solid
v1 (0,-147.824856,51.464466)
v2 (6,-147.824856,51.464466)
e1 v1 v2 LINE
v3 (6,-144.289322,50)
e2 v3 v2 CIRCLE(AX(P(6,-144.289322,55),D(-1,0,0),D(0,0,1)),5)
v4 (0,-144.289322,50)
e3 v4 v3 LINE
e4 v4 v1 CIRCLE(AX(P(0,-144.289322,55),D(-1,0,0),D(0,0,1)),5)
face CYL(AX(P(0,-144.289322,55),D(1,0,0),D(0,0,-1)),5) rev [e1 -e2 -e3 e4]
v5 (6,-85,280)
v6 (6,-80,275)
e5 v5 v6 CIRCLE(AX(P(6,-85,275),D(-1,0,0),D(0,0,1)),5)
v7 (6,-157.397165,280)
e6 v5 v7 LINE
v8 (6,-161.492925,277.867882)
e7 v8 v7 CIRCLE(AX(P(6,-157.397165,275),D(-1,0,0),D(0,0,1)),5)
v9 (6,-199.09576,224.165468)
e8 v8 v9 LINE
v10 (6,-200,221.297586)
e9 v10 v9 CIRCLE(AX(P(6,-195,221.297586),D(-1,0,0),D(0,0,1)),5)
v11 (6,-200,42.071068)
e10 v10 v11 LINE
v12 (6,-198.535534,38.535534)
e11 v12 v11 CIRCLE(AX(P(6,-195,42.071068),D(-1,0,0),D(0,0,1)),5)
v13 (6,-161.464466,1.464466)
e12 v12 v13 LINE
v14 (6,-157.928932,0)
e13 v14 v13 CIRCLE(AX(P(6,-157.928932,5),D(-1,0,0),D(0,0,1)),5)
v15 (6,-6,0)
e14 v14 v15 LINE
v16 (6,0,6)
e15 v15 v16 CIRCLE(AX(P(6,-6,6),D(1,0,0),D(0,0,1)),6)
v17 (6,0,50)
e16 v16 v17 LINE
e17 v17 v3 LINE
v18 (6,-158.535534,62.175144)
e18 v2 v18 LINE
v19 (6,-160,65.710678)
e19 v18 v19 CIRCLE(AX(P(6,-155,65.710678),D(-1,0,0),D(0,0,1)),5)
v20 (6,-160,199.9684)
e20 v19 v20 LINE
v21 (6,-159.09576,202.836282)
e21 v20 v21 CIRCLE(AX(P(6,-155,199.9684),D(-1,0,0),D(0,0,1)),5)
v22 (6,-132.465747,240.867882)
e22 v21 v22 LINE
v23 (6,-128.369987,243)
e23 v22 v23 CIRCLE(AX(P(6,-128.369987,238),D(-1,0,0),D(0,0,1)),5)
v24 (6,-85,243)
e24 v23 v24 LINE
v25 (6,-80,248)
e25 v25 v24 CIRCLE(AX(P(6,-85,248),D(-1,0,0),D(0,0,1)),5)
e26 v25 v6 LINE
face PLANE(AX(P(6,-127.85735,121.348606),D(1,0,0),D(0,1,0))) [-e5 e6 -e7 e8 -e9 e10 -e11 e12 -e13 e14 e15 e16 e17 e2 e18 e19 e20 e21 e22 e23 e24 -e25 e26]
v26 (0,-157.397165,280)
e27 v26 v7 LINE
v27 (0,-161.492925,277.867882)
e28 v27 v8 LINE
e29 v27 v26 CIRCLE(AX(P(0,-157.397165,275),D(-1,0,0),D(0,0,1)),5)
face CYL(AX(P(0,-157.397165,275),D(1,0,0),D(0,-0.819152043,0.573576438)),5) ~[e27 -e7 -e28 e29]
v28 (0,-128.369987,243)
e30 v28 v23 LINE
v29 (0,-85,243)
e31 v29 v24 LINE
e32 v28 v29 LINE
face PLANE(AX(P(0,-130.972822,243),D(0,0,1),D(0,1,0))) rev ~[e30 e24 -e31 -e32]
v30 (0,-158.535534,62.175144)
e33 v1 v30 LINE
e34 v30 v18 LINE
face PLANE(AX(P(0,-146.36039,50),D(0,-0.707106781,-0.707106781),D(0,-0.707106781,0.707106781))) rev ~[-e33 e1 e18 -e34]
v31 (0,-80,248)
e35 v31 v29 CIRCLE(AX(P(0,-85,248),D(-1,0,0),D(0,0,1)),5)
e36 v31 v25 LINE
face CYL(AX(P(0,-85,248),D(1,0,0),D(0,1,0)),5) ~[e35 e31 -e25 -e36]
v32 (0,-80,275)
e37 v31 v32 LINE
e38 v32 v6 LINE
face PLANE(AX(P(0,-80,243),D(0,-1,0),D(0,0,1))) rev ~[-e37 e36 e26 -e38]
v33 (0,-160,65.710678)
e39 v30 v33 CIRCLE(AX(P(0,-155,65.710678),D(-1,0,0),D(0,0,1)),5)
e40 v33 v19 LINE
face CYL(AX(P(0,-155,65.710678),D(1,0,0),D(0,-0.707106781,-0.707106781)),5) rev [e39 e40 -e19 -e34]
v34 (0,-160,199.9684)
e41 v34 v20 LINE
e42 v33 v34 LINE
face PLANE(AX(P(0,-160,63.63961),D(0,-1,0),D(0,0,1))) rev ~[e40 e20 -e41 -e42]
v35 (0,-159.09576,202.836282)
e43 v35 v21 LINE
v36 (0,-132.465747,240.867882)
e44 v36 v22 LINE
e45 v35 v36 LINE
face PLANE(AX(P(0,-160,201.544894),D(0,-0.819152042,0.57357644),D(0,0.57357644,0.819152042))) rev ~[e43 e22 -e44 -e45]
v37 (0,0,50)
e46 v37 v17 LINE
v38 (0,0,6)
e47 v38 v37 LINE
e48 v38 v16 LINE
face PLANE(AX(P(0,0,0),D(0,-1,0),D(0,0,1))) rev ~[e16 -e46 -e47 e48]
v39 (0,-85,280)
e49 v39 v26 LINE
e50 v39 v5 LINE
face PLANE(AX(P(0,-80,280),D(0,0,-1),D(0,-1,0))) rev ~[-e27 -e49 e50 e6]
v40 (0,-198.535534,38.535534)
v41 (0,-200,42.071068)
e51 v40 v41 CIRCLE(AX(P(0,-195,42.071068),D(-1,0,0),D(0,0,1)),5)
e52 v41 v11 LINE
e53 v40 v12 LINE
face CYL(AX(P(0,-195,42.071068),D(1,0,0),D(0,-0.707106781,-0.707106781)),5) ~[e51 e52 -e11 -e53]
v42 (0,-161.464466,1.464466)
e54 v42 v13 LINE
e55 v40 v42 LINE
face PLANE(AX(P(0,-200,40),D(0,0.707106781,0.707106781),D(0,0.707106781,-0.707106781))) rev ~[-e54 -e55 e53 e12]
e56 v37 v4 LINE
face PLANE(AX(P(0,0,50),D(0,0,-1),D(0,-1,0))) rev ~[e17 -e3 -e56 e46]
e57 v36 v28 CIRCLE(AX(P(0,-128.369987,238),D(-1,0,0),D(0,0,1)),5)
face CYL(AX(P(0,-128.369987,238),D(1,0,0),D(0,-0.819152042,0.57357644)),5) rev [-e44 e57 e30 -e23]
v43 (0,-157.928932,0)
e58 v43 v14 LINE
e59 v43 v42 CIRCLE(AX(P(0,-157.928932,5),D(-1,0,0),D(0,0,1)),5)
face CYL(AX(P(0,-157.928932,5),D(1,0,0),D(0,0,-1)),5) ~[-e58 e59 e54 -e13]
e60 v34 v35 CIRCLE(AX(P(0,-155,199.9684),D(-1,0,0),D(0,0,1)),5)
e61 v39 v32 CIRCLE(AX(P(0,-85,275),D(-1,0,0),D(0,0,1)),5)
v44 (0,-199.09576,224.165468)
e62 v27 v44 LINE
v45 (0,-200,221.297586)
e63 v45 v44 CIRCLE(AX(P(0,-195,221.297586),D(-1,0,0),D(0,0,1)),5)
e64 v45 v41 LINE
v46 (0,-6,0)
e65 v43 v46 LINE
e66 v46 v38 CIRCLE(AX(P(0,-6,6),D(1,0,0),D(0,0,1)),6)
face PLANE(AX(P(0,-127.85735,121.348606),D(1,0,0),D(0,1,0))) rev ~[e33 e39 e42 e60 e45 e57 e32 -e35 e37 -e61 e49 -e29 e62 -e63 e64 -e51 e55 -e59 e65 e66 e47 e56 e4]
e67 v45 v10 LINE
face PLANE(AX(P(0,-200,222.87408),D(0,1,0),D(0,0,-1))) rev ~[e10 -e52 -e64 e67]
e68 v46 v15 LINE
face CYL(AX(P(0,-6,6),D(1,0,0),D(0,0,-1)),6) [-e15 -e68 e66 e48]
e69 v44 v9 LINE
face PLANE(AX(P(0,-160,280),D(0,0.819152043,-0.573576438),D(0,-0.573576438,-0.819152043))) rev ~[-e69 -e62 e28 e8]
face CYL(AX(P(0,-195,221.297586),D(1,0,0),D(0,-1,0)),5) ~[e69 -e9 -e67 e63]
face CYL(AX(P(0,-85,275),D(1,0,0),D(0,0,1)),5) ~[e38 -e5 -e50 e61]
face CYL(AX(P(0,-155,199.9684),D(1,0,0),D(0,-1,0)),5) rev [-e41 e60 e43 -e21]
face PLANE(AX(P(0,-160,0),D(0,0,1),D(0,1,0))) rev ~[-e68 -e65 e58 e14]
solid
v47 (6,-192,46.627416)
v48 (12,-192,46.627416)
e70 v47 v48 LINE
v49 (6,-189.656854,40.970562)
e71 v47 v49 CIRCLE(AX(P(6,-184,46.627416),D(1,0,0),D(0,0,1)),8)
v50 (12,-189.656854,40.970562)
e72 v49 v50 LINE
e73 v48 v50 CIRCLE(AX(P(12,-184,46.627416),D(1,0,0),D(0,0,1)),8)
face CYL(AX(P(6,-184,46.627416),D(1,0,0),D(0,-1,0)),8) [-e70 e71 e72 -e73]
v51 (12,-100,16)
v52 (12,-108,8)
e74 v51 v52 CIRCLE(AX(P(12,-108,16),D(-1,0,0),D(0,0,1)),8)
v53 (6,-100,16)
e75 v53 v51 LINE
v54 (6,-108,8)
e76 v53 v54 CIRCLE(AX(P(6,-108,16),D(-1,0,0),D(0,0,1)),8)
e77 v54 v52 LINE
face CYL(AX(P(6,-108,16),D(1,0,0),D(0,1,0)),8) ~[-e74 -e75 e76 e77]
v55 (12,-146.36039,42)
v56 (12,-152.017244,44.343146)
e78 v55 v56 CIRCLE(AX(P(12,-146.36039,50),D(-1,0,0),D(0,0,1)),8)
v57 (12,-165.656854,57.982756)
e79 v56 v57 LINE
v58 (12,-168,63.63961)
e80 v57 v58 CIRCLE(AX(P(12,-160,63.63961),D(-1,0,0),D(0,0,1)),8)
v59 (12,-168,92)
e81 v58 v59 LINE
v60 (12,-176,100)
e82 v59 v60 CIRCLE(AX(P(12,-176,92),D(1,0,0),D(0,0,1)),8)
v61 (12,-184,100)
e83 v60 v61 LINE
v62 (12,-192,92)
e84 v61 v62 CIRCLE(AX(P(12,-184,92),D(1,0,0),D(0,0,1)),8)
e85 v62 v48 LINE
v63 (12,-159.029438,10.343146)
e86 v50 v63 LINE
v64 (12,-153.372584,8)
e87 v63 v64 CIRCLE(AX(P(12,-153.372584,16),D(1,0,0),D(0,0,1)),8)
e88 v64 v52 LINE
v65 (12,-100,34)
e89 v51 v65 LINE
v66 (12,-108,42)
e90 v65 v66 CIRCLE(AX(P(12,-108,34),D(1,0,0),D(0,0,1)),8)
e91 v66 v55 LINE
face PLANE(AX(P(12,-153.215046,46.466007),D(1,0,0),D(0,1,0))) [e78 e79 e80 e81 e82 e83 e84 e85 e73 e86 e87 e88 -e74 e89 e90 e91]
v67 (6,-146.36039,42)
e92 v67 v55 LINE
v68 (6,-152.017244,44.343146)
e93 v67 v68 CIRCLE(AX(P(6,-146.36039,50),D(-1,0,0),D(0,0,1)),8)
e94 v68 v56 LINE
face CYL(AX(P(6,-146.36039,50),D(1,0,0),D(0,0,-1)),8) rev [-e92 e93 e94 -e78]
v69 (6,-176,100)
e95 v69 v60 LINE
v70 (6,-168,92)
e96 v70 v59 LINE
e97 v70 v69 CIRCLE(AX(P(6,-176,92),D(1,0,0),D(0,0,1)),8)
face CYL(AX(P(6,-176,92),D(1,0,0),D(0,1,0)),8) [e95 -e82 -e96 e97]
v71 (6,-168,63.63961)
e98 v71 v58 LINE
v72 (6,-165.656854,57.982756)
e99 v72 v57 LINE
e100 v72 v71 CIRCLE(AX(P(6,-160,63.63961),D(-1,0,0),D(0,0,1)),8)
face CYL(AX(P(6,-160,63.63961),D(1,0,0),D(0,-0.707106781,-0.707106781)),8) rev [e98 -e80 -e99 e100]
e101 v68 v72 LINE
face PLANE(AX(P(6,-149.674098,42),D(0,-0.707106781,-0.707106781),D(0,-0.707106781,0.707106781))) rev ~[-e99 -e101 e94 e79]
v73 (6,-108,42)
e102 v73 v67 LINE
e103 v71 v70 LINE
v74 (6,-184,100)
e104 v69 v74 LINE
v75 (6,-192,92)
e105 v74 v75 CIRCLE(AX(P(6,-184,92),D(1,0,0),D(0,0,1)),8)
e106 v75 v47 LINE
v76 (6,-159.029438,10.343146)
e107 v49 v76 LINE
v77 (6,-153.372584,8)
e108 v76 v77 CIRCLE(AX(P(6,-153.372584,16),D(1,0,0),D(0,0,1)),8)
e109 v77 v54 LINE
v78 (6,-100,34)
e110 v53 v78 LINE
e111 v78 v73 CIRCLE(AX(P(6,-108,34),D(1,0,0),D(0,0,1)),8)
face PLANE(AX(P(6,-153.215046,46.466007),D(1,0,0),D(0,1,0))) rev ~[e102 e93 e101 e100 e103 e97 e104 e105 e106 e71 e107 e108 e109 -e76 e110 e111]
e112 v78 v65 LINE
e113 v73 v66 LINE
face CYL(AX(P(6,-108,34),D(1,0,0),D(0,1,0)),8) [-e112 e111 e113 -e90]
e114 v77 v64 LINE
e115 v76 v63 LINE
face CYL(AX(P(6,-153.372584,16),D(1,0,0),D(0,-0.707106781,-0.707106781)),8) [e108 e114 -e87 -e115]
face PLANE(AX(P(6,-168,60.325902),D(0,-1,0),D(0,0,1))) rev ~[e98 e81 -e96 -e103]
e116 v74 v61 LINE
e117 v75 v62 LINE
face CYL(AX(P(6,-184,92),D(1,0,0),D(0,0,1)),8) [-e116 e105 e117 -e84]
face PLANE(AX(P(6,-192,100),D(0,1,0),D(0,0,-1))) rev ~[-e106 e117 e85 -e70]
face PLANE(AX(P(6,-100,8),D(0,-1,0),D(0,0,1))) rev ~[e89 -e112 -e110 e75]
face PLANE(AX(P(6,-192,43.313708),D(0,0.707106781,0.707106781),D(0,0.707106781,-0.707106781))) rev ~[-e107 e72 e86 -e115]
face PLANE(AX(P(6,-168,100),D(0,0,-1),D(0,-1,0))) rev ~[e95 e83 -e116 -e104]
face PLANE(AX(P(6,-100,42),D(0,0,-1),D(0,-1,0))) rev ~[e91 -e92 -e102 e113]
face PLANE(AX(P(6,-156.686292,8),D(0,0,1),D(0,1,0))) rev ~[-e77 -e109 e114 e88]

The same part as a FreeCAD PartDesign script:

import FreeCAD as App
import Part
import Sketcher
Q = App.Units.Quantity


def edges_at(feature, points):
    """Names of the edges that pass closest to the given points."""
    edges = feature.Shape.Edges
    near = lambda p: min(range(len(edges)), key=lambda i: edges[i].distToShape(Part.Vertex(*p))[0])
    return sorted({f"Edge{near(p) + 1}" for p in points})

doc = App.newDocument("Part")
body = doc.addObject("PartDesign::Body", "Body")

# Sketch on YZ plane
sketch1 = doc.addObject("Sketcher::SketchObject", "Sketch")
body.addObject(sketch1)
sketch1.AttachmentSupport = (doc.YZ_Plane, [""])
sketch1.MapMode = "FlatFace"
sketch1.addGeometry(Part.LineSegment(App.Vector(-160, 0, 0), App.Vector(0, 0, 0)), False)
sketch1.addGeometry(Part.LineSegment(App.Vector(0, 0, 0), App.Vector(0, 50, 0)), False)
sketch1.addGeometry(Part.LineSegment(App.Vector(0, 50, 0), App.Vector(-146.36039, 50, 0)), False)
sketch1.addGeometry(Part.LineSegment(App.Vector(-146.36039, 50, 0), App.Vector(-160, 63.63961, 0)), False)
sketch1.addGeometry(Part.LineSegment(App.Vector(-160, 63.63961, 0), App.Vector(-160, 201.544894, 0)), False)
sketch1.addGeometry(Part.LineSegment(App.Vector(-160, 201.544894, 0), App.Vector(-130.972822, 243, 0)), False)
sketch1.addGeometry(Part.LineSegment(App.Vector(-130.972822, 243, 0), App.Vector(-80, 243, 0)), False)
sketch1.addGeometry(Part.LineSegment(App.Vector(-80, 243, 0), App.Vector(-80, 280, 0)), False)
sketch1.addGeometry(Part.LineSegment(App.Vector(-80, 280, 0), App.Vector(-160, 280, 0)), False)
sketch1.addGeometry(Part.LineSegment(App.Vector(-160, 280, 0), App.Vector(-200, 222.87408, 0)), False)
sketch1.addGeometry(Part.LineSegment(App.Vector(-200, 222.87408, 0), App.Vector(-200, 40, 0)), False)
sketch1.addGeometry(Part.LineSegment(App.Vector(-200, 40, 0), App.Vector(-160, 0, 0)), False)
sketch1.addConstraint(Sketcher.Constraint("Coincident", 0, 2, 1, 1))
sketch1.addConstraint(Sketcher.Constraint("Coincident", 1, 2, 2, 1))
sketch1.addConstraint(Sketcher.Constraint("Coincident", 2, 2, 3, 1))
sketch1.addConstraint(Sketcher.Constraint("Coincident", 3, 2, 4, 1))
sketch1.addConstraint(Sketcher.Constraint("Coincident", 4, 2, 5, 1))
sketch1.addConstraint(Sketcher.Constraint("Coincident", 5, 2, 6, 1))
sketch1.addConstraint(Sketcher.Constraint("Coincident", 6, 2, 7, 1))
sketch1.addConstraint(Sketcher.Constraint("Coincident", 7, 2, 8, 1))
sketch1.addConstraint(Sketcher.Constraint("Coincident", 8, 2, 9, 1))
sketch1.addConstraint(Sketcher.Constraint("Coincident", 9, 2, 10, 1))
sketch1.addConstraint(Sketcher.Constraint("Coincident", 10, 2, 11, 1))
sketch1.addConstraint(Sketcher.Constraint("Coincident", 11, 2, 0, 1))
sketch1.addConstraint(Sketcher.Constraint("Horizontal", 0))
sketch1.addConstraint(Sketcher.Constraint("Vertical", 1))
sketch1.addConstraint(Sketcher.Constraint("Horizontal", 2))
sketch1.addConstraint(Sketcher.Constraint("Vertical", 4))
sketch1.addConstraint(Sketcher.Constraint("Horizontal", 6))
sketch1.addConstraint(Sketcher.Constraint("Vertical", 7))
sketch1.addConstraint(Sketcher.Constraint("Horizontal", 8))
sketch1.addConstraint(Sketcher.Constraint("Vertical", 10))
sketch1.addConstraint(Sketcher.Constraint("Coincident", 0, 2, -1, 1))
sketch1.addConstraint(Sketcher.Constraint("Parallel", 5, 9))
sketch1.addConstraint(Sketcher.Constraint("Parallel", 3, 11))
sketch1.addConstraint(Sketcher.Constraint("Vertical", 4, 2, 8, 2))
sketch1.addConstraint(Sketcher.Constraint("Vertical", 8, 2, 11, 2))
sketch1.addConstraint(Sketcher.Constraint("DistanceX", 0, 1, 0, 2, 160.0))
sketch1.addConstraint(Sketcher.Constraint("DistanceX", 8, 2, 8, 1, 80.0))
sketch1.addConstraint(Sketcher.Constraint("DistanceY", 1, 1, 1, 2, 50.0))
sketch1.addConstraint(Sketcher.Constraint("DistanceY", 7, 1, 7, 2, 37.0))
sketch1.addConstraint(Sketcher.Constraint("Angle", 3, Q("135 deg")))
sketch1.addConstraint(Sketcher.Constraint("Angle", 5, Q("55 deg")))
sketch1.addConstraint(Sketcher.Constraint("DistanceY", -1, 1, 5, 2, 243.0))
sketch1.addConstraint(Sketcher.Constraint("DistanceX", 9, 2, -1, 1, 200.0))
sketch1.addConstraint(Sketcher.Constraint("DistanceX", 2, 2, 2, 1, 146.36039))
sketch1.addConstraint(Sketcher.Constraint("Distance", 5, 50.60734))
pad1 = doc.addObject("PartDesign::Pad", "Pad")
body.addObject(pad1)
pad1.Profile = sketch1
pad1.Length = 6
doc.recompute()

fillet = doc.addObject("PartDesign::Fillet", "Fillet")
body.addObject(fillet)
fillet.Base = (pad1, edges_at(pad1, [(3, 0, 0)]))
fillet.Radius = 6
doc.recompute()

fillet2 = doc.addObject("PartDesign::Fillet", "Fillet001")
body.addObject(fillet2)
fillet2.Base = (fillet, edges_at(fillet, [
    (3, -146.36, 50),
    (3, -160, 63.64),
    (3, -130.973, 243),
    (3, -160, 201.545),
    (3, -160, 280),
    (3, -200, 222.874),
    (3, -160, 0),
    (3, -200, 40),
    (3, -80, 280),
    (3, -80, 243),
]))
fillet2.Radius = 5
body2 = doc.addObject("PartDesign::Body", "Body001")

# Sketch on YZ plane
sketch2 = doc.addObject("Sketcher::SketchObject", "Sketch001")
body2.addObject(sketch2)
sketch2.AttachmentSupport = (doc.getObject("YZ_Plane001"), [""])
sketch2.MapMode = "FlatFace"
sketch2.AttachmentOffset = App.Placement(App.Vector(0, 0, 6), App.Rotation())
sketch2.addGeometry(Part.LineSegment(App.Vector(-100, 8, 0), App.Vector(-100, 42, 0)), False)
sketch2.addGeometry(Part.LineSegment(App.Vector(-100, 42, 0), App.Vector(-149.674098, 42, 0)), False)
sketch2.addGeometry(Part.LineSegment(App.Vector(-149.674098, 42, 0), App.Vector(-168, 60.325902, 0)), False)
sketch2.addGeometry(Part.LineSegment(App.Vector(-168, 60.325902, 0), App.Vector(-168, 100, 0)), False)
sketch2.addGeometry(Part.LineSegment(App.Vector(-168, 100, 0), App.Vector(-192, 100, 0)), False)
sketch2.addGeometry(Part.LineSegment(App.Vector(-192, 100, 0), App.Vector(-192, 43.313708, 0)), False)
sketch2.addGeometry(Part.LineSegment(App.Vector(-192, 43.313708, 0), App.Vector(-156.686292, 8, 0)), False)
sketch2.addGeometry(Part.LineSegment(App.Vector(-156.686292, 8, 0), App.Vector(-100, 8, 0)), False)
sketch2.addConstraint(Sketcher.Constraint("Coincident", 0, 2, 1, 1))
sketch2.addConstraint(Sketcher.Constraint("Coincident", 1, 2, 2, 1))
sketch2.addConstraint(Sketcher.Constraint("Coincident", 2, 2, 3, 1))
sketch2.addConstraint(Sketcher.Constraint("Coincident", 3, 2, 4, 1))
sketch2.addConstraint(Sketcher.Constraint("Coincident", 4, 2, 5, 1))
sketch2.addConstraint(Sketcher.Constraint("Coincident", 5, 2, 6, 1))
sketch2.addConstraint(Sketcher.Constraint("Coincident", 6, 2, 7, 1))
sketch2.addConstraint(Sketcher.Constraint("Coincident", 7, 2, 0, 1))
sketch2.addConstraint(Sketcher.Constraint("Vertical", 0))
sketch2.addConstraint(Sketcher.Constraint("Horizontal", 1))
sketch2.addConstraint(Sketcher.Constraint("Vertical", 3))
sketch2.addConstraint(Sketcher.Constraint("Horizontal", 4))
sketch2.addConstraint(Sketcher.Constraint("Vertical", 5))
sketch2.addConstraint(Sketcher.Constraint("Horizontal", 7))
sketch2.addConstraint(Sketcher.Constraint("Parallel", 2, 6))
sketch2.addConstraint(Sketcher.Constraint("Equal", 7, 5))
sketch2.addConstraint(Sketcher.Constraint("DistanceX", 4, 2, 4, 1, 24.0))
sketch2.addConstraint(Sketcher.Constraint("DistanceY", 0, 1, 0, 2, 34.0))
sketch2.addConstraint(Sketcher.Constraint("Angle", 2, Q("135 deg")))
sketch2.addConstraint(Sketcher.Constraint("DistanceX", 0, 2, -1, 1, 100.0))
sketch2.addConstraint(Sketcher.Constraint("DistanceY", -1, 1, 0, 2, 42.0))
sketch2.addConstraint(Sketcher.Constraint("DistanceX", 2, 2, -1, 1, 168.0))
sketch2.addConstraint(Sketcher.Constraint("DistanceY", 1, 2, 2, 2, 18.325902))
sketch2.addConstraint(Sketcher.Constraint("DistanceX", 7, 1, 7, 2, 56.686292))
pad2 = doc.addObject("PartDesign::Pad", "Pad001")
body2.addObject(pad2)
pad2.Profile = sketch2
pad2.Length = 6
doc.recompute()

fillet3 = doc.addObject("PartDesign::Fillet", "Fillet002")
body2.addObject(fillet3)
fillet3.Base = (pad2, edges_at(pad2, [
    (9, -168, 100),
    (9, -192, 100),
    (9, -168, 60.326),
    (9, -149.674, 42),
    (9, -100, 42),
    (9, -100, 8),
    (9, -156.686, 8),
    (9, -192, 43.314),
]))
fillet3.Radius = 8

doc.recompute()
